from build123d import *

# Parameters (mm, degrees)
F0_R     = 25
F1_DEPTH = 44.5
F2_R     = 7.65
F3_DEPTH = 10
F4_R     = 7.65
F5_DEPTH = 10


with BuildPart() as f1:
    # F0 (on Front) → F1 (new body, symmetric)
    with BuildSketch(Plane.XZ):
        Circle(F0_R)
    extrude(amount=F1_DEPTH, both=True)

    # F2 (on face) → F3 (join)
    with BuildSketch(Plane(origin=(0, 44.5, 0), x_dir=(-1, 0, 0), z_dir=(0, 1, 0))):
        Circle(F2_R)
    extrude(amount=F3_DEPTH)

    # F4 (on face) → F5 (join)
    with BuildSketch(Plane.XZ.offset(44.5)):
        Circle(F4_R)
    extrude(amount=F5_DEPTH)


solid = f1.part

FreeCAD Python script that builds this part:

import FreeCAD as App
import Part
import Sketcher

V = App.Vector

doc = App.newDocument("Part")
body = doc.addObject("PartDesign::Body", "Body")

sketch1 = doc.addObject("Sketcher::SketchObject", "Sketch")
body.addObject(sketch1)
sketch1.AttachmentSupport = (doc.XZ_Plane, [""])
sketch1.MapMode = "FlatFace"
sketch1.addGeometry(Part.Circle(V(0, 0, 0), V(0, 0, 1), 25), False)
sketch1.addConstraint([
    Sketcher.Constraint("Coincident", 0, 3, -1, 1),
    Sketcher.Constraint("Diameter", 0, 50.0),
])
pad1 = doc.addObject("PartDesign::Pad", "Pad")
body.addObject(pad1)
pad1.Profile = sketch1
pad1.Length = 89
pad1.Midplane = True

sketch2 = doc.addObject("Sketcher::SketchObject", "Sketch001")
body.addObject(sketch2)
sketch2.AttachmentSupport = (doc.XZ_Plane, [""])
sketch2.MapMode = "FlatFace"
sketch2.AttachmentOffset = App.Placement(V(0, 0, -44.5), App.Rotation())
sketch2.addGeometry(Part.Circle(V(0, 0, 0), V(0, 0, 1), 8), False)
sketch2.addConstraint([
    Sketcher.Constraint("Coincident", 0, 3, -1, 1),
    Sketcher.Constraint("Diameter", 0, 15.3),
])
pad2 = doc.addObject("PartDesign::Pad", "Pad001")
body.addObject(pad2)
pad2.Profile = sketch2
pad2.Length = 10
pad2.Reversed = True

sketch3 = doc.addObject("Sketcher::SketchObject", "Sketch002")
body.addObject(sketch3)
sketch3.AttachmentSupport = (doc.XZ_Plane, [""])
sketch3.MapMode = "FlatFace"
sketch3.AttachmentOffset = App.Placement(V(0, 0, 44.5), App.Rotation())
sketch3.addGeometry(Part.Circle(V(0, 0, 0), V(0, 0, 1), 8), False)
sketch3.addConstraint([
    Sketcher.Constraint("Coincident", 0, 3, -1, 1),
    Sketcher.Constraint("Diameter", 0, 15.3),
])
pad3 = doc.addObject("PartDesign::Pad", "Pad002")
body.addObject(pad3)
pad3.Profile = sketch3
pad3.Length = 10

doc.recompute()
